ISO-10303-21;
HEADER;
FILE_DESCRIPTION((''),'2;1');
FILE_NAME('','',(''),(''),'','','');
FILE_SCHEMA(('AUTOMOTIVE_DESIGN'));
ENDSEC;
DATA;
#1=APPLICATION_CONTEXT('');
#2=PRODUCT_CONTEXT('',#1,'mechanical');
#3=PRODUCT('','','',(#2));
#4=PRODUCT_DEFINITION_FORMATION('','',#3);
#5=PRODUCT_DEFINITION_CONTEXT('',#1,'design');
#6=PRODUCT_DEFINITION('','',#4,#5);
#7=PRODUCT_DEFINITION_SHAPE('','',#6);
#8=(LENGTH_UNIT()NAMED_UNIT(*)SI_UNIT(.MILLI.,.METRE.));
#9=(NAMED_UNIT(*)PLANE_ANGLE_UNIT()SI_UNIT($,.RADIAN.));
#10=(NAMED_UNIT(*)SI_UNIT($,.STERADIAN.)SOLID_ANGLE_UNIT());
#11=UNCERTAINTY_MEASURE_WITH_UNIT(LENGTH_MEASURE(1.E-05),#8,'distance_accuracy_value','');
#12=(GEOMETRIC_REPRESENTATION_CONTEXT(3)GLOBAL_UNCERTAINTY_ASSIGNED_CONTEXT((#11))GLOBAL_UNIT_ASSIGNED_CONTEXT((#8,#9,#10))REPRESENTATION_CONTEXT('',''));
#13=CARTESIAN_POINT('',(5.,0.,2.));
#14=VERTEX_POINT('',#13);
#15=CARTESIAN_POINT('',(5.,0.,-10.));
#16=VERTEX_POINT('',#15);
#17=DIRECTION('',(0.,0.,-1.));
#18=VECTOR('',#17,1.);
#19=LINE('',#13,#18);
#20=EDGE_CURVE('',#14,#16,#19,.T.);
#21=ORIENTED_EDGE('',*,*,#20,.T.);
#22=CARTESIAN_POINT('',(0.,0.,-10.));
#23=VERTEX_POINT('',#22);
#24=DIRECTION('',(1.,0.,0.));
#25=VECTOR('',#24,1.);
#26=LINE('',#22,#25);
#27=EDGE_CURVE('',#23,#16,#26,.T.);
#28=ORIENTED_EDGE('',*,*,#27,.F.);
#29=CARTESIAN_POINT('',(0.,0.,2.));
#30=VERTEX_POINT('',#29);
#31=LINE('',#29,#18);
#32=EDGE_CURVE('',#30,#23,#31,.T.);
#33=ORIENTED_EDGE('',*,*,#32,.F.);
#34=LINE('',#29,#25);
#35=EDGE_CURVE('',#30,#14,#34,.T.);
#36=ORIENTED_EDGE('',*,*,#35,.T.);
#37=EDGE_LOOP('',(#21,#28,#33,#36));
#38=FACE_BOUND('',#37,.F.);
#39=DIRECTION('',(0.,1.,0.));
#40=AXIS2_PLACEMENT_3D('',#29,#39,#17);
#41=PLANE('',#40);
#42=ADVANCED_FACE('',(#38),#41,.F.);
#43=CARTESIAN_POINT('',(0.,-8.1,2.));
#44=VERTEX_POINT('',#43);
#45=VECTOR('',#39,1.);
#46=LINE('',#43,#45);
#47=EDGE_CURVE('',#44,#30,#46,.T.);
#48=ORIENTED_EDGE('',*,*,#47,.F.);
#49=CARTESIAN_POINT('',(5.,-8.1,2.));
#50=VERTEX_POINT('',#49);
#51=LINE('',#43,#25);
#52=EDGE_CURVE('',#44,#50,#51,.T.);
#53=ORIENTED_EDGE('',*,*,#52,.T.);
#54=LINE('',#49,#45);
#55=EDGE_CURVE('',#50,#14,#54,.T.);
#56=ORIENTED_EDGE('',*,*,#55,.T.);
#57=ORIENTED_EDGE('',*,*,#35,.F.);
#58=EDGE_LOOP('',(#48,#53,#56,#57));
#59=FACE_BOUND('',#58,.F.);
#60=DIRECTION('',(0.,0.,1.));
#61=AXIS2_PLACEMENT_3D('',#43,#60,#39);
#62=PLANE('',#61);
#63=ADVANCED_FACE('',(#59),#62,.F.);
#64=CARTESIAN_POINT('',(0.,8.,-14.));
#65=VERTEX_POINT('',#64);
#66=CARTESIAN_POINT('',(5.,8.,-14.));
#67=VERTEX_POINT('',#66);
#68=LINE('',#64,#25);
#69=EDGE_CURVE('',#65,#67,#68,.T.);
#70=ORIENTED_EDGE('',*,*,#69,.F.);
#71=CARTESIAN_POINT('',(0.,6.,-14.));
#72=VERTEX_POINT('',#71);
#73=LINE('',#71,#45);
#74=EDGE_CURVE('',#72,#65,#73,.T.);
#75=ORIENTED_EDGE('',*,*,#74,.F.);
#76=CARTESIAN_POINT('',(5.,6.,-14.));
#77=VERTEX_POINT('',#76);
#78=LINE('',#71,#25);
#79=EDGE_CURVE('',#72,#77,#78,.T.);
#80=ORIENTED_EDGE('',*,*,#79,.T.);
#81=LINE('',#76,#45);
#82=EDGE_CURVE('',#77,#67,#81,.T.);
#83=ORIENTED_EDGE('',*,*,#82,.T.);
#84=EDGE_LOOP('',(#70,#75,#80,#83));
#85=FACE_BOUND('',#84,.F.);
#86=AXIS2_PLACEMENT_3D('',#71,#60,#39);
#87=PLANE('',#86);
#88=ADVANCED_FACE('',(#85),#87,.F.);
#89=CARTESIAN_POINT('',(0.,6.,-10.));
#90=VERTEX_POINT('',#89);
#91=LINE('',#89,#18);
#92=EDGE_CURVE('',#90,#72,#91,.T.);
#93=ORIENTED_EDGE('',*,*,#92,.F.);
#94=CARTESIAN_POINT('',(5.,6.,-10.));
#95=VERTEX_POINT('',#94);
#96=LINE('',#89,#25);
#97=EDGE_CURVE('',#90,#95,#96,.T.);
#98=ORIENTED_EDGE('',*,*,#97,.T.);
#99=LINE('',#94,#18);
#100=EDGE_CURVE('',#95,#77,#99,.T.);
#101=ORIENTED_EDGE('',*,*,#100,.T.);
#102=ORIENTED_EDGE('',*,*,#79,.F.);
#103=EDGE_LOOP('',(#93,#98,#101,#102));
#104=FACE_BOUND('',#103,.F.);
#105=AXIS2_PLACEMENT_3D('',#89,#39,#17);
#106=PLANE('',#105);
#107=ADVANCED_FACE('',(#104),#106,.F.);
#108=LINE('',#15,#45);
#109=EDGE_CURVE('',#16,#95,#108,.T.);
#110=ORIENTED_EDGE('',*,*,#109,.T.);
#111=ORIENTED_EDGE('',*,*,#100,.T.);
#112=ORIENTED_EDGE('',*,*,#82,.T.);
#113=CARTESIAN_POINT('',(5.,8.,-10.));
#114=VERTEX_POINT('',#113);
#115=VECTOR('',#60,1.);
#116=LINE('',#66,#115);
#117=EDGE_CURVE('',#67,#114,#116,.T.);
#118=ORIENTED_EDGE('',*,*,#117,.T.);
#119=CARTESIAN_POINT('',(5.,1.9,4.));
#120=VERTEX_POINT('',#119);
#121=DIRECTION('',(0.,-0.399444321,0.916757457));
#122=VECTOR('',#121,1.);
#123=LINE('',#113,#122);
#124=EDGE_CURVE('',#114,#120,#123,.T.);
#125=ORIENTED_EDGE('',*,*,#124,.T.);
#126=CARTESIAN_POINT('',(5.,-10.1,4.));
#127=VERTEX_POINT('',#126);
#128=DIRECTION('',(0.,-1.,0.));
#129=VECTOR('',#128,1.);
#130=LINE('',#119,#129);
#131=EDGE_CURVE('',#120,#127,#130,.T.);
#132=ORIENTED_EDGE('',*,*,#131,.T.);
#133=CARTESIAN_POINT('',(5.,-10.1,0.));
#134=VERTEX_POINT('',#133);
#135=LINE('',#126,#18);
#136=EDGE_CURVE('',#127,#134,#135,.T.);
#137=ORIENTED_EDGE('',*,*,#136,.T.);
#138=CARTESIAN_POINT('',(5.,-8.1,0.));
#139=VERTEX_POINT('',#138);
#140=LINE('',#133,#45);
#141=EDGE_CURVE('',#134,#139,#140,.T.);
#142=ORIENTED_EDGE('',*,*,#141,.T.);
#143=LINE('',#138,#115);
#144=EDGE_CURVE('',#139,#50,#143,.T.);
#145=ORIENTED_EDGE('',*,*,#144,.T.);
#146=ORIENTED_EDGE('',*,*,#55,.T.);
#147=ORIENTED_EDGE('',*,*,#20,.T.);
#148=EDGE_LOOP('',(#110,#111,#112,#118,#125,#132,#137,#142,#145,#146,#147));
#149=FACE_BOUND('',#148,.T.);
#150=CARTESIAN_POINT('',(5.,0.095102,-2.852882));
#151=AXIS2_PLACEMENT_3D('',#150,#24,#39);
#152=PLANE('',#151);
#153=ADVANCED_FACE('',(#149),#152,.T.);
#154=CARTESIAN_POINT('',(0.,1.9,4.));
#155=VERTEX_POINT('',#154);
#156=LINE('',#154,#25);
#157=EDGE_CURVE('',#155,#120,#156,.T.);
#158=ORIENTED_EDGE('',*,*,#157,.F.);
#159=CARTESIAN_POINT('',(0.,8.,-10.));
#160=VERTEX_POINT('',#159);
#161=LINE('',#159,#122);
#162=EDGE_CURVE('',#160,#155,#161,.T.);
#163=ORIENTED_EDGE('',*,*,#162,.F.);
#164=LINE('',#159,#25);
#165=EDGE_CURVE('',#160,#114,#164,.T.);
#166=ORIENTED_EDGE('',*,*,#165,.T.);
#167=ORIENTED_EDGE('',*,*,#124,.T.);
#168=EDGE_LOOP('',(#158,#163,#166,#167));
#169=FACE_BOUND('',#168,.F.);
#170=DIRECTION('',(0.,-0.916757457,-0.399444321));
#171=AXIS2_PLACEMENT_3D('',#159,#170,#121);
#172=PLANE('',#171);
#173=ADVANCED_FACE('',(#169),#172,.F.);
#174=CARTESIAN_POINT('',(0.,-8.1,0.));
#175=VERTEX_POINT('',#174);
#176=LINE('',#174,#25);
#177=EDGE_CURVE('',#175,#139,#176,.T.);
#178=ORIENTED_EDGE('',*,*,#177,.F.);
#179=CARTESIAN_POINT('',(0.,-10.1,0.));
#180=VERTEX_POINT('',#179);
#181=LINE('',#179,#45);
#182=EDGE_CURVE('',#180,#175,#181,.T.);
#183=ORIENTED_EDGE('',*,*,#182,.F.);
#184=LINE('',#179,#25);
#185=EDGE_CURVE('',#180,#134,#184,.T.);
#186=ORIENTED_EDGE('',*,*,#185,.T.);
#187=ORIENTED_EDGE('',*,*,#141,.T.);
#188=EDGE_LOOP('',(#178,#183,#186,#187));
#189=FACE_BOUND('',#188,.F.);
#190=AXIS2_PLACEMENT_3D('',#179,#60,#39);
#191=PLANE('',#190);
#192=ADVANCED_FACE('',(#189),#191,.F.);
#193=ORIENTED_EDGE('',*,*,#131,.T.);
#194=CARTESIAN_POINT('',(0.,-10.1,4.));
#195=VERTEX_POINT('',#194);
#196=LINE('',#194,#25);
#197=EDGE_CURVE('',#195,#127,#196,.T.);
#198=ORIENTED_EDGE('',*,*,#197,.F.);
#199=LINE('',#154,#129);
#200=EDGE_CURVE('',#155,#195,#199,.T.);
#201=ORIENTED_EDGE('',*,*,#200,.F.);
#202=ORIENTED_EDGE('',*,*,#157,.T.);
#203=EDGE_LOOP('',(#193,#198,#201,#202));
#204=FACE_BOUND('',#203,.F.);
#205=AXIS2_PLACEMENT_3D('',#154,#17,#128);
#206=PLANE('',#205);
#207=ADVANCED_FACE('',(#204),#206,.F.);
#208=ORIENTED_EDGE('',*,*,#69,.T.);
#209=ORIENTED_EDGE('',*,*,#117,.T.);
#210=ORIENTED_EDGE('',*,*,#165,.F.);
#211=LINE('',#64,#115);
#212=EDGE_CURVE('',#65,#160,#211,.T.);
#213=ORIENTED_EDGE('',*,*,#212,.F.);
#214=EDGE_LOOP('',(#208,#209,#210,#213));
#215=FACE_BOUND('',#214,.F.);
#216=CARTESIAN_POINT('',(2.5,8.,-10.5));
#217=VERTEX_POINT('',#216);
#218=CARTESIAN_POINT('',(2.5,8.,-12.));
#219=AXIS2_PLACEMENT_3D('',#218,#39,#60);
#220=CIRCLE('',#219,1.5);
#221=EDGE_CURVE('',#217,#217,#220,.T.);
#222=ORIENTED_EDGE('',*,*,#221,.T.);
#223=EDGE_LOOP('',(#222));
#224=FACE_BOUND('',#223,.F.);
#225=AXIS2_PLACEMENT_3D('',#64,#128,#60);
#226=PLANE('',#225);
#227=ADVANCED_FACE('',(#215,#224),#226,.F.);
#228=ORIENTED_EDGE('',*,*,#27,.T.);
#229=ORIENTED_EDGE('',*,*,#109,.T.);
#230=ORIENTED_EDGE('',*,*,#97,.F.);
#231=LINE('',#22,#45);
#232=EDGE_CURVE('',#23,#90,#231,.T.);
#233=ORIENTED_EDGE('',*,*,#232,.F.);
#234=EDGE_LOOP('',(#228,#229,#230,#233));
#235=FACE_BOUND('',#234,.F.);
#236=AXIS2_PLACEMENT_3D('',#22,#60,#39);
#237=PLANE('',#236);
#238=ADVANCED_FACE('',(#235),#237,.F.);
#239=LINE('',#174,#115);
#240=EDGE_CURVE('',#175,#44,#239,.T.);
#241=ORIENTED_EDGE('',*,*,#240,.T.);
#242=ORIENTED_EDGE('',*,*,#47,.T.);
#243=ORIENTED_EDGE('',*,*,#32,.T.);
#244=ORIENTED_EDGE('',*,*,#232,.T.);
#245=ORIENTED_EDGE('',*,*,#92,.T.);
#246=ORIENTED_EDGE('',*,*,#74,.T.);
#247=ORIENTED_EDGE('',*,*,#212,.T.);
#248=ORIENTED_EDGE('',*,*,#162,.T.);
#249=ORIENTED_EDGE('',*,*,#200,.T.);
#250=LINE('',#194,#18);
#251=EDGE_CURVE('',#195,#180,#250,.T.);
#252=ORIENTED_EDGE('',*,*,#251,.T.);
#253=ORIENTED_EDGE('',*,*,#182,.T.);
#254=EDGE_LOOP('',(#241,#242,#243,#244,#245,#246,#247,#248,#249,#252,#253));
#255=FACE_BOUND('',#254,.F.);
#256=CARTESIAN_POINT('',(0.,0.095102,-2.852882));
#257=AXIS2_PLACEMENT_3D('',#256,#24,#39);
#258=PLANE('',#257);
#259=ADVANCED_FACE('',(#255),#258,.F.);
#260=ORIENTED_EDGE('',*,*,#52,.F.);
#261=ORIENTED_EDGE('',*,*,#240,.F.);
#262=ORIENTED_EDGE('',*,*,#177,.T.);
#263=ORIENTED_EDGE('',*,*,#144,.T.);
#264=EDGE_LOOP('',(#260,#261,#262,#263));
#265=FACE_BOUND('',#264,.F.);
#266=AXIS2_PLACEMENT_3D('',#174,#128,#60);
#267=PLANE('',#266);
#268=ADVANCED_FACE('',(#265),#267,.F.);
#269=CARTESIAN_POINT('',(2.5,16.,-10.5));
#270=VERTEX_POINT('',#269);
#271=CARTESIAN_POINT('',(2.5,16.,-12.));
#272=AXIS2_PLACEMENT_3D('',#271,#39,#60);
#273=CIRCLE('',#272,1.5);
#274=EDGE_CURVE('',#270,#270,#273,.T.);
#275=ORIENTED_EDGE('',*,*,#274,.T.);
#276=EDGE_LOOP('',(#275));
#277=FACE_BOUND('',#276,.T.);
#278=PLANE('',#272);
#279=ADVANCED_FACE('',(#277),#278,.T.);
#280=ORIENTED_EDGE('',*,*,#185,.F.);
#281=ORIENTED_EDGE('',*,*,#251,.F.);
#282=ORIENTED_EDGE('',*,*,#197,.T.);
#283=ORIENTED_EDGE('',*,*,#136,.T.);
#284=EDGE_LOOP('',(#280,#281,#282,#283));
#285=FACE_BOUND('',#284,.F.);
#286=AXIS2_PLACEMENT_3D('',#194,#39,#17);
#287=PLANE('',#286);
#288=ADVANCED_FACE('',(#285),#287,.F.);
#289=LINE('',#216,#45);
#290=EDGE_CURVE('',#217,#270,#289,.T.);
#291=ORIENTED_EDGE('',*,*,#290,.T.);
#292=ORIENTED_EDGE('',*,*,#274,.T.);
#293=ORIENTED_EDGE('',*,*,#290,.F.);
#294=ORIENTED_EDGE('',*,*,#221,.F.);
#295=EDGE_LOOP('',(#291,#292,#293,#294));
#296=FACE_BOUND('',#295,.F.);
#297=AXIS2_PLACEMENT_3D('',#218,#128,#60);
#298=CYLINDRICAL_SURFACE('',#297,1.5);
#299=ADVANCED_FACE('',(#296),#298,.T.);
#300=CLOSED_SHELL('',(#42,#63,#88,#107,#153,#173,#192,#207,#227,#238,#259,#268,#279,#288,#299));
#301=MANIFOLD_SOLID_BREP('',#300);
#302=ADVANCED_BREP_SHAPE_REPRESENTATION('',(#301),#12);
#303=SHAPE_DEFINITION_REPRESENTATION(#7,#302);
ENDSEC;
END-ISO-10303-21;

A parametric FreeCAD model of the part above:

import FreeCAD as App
import Part
import Sketcher

V = App.Vector
Q = App.Units.Quantity


def add_polygon(sketch, points):
    """Adds a closed chain of lines whose ends are joined by coincident constraints."""
    first, n = sketch.GeometryCount, len(points)
    for a, b in zip(points, points[1:] + points[:1]):
        sketch.addGeometry(Part.LineSegment(App.Vector(*a, 0), App.Vector(*b, 0)), False)
    for i in range(n):
        sketch.addConstraint(Sketcher.Constraint("Coincident", first + i, 2, first + (i + 1) % n, 1))

doc = App.newDocument("Part")
params = doc.addObject("Spreadsheet::Sheet", "Params")
for row, (alias, value) in enumerate([
    ("sketch1_width", "2 mm"),
    ("sketch1_width2", "6 mm"),
    ("sketch1_width3", "12 mm"),
    ("sketch1_height", "4 mm"),
    ("sketch1_width4", "8.1 mm"),
    ("pad1_length", "5 mm"),
    ("sketch2_diameter", "3 mm"),
    ("pad2_length", "8 mm"),
], start=1):
    params.set(f"A{row}", alias)
    params.set(f"B{row}", "=" + value)
    params.setAlias(f"B{row}", alias)

body = doc.addObject("PartDesign::Body", "Body")

# Sketch on YZ plane
sketch1 = doc.addObject("Sketcher::SketchObject", "Sketch")
body.addObject(sketch1)
sketch1.AttachmentSupport = (doc.YZ_Plane, [""])
sketch1.MapMode = "FlatFace"
add_polygon(sketch1, [(-10.1, 0), (-8.1, 0), (-8.1, 2), (0, 2), (0, -10), (6, -10), (6, -14), (8, -14), (8, -10), (1.9, 4), (-10.1, 4)])  # lines 0-10
sketch1.addConstraint(Sketcher.Constraint("Horizontal", 0))
sketch1.addConstraint(Sketcher.Constraint("Vertical", 1))
sketch1.addConstraint(Sketcher.Constraint("Horizontal", 2))
sketch1.addConstraint(Sketcher.Constraint("Vertical", 3))
sketch1.addConstraint(Sketcher.Constraint("Horizontal", 4))
sketch1.addConstraint(Sketcher.Constraint("Vertical", 5))
sketch1.addConstraint(Sketcher.Constraint("Horizontal", 6))
sketch1.addConstraint(Sketcher.Constraint("Vertical", 7))
sketch1.addConstraint(Sketcher.Constraint("Horizontal", 9))
sketch1.addConstraint(Sketcher.Constraint("Vertical", 10))
sketch1.addConstraint(Sketcher.Constraint("PointOnObject", 0, 2, -1))
sketch1.addConstraint(Sketcher.Constraint("PointOnObject", 2, 2, -2))
sketch1.addConstraint(Sketcher.Constraint("Horizontal", 4, 2, 7, 2))
sketch1.addConstraint(Sketcher.Constraint("Equal", 0, 6))
sketch1.addConstraint(Sketcher.Constraint("Equal", 6, 1))
sketch1.addConstraint(Sketcher.Constraint("Equal", 9, 3))
sketch1.addConstraint(Sketcher.Constraint("Equal", 7, 10))
sketch1.addConstraint(Sketcher.Constraint("DistanceX", 0, 1, 0, 2, Q("2 mm")))
sketch1.addConstraint(Sketcher.Constraint("DistanceX", 4, 1, 4, 2, Q("6 mm")))
sketch1.addConstraint(Sketcher.Constraint("DistanceX", 9, 2, 9, 1, Q("12 mm")))
sketch1.addConstraint(Sketcher.Constraint("DistanceY", 5, 2, 5, 1, Q("4 mm")))
sketch1.addConstraint(Sketcher.Constraint("DistanceX", 2, 1, 2, 2, Q("8.1 mm")))
sketch1.setExpression("Constraints[28]", "Params.sketch1_width")
sketch1.setExpression("Constraints[29]", "Params.sketch1_width2")
sketch1.setExpression("Constraints[30]", "Params.sketch1_width3")
sketch1.setExpression("Constraints[31]", "Params.sketch1_height")
sketch1.setExpression("Constraints[32]", "Params.sketch1_width4")
pad1 = doc.addObject("PartDesign::Pad", "Pad")
body.addObject(pad1)
pad1.Profile = sketch1
pad1.setExpression("Length", "Params.pad1_length")

# Sketch on XZ plane
sketch2 = doc.addObject("Sketcher::SketchObject", "Sketch001")
body.addObject(sketch2)
sketch2.AttachmentSupport = (doc.XZ_Plane, [""])
sketch2.MapMode = "FlatFace"
sketch2.AttachmentOffset = App.Placement(V(0, 0, -8), App.Rotation())
sketch2.addGeometry(Part.Circle(V(2.5, -12, 0), V(0, 0, 1), 1.5), False)
sketch2.addConstraint(Sketcher.Constraint("Diameter", 0, Q("3 mm")))
sketch2.addConstraint(Sketcher.Constraint("DistanceY", 0, 3, -1, 1, Q("12 mm")))
sketch2.addConstraint(Sketcher.Constraint("DistanceX", -1, 1, 0, 3, Q("2.5 mm")))
sketch2.setExpression("Constraints[0]", "Params.sketch2_diameter")
pad2 = doc.addObject("PartDesign::Pad", "Pad001")
body.addObject(pad2)
pad2.Profile = sketch2
pad2.setExpression("Length", "Params.pad2_length")
pad2.Reversed = True

doc.recompute()
